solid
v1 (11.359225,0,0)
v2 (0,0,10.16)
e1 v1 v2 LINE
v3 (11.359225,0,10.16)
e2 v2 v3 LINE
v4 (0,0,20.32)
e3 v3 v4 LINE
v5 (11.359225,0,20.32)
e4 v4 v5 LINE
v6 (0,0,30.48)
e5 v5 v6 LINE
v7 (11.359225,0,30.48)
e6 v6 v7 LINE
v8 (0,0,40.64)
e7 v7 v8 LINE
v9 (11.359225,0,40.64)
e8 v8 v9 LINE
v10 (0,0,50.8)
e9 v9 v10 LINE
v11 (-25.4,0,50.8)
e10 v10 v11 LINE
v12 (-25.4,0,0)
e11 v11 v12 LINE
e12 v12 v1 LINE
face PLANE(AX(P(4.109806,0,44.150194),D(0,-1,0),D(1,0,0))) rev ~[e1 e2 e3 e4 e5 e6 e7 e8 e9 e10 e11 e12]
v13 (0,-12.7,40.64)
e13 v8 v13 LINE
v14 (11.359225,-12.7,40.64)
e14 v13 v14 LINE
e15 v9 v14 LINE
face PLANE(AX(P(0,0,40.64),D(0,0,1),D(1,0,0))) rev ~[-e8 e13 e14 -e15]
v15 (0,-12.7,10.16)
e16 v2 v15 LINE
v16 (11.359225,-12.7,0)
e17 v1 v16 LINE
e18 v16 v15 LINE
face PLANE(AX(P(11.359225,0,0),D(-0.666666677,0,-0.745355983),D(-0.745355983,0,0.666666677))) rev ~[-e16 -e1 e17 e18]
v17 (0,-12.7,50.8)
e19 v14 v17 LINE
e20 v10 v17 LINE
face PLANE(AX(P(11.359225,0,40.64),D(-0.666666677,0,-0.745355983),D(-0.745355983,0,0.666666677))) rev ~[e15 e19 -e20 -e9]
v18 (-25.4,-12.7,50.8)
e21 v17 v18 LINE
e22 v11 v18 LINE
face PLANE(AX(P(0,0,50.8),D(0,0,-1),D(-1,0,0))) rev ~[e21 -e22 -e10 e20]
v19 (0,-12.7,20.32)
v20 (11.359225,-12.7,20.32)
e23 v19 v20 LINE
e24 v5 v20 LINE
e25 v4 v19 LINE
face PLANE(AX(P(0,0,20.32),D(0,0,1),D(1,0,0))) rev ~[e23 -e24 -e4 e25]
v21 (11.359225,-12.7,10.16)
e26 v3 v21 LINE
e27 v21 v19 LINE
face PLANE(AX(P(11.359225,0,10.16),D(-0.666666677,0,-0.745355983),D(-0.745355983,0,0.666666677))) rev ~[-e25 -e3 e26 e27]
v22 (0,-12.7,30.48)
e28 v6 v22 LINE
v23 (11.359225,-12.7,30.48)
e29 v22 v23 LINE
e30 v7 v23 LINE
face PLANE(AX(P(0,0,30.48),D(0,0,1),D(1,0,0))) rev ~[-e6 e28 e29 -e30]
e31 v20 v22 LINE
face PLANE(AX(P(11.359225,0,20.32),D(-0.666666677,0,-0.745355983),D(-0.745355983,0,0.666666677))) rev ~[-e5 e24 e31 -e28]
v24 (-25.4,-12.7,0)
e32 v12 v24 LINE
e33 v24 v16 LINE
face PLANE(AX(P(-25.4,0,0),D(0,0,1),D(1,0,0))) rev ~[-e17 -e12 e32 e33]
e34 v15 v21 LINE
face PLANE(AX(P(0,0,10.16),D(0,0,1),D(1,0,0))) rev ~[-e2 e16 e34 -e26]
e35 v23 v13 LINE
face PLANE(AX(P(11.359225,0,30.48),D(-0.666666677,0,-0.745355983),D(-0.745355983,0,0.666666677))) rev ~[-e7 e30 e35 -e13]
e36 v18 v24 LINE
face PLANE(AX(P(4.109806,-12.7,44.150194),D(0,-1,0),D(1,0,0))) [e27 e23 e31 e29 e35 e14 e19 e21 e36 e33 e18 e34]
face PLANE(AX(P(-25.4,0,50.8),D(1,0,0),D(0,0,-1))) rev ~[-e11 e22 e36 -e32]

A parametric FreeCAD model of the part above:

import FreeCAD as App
import Part
import Sketcher
from FreeCAD import Vector
Q = App.Units.Quantity


def add_polygon(sketch, points):
    """Adds a closed chain of lines whose ends are joined by coincident constraints."""
    first, n = sketch.GeometryCount, len(points)
    for a, b in zip(points, points[1:] + points[:1]):
        sketch.addGeometry(Part.LineSegment(App.Vector(*a, 0), App.Vector(*b, 0)), False)
    for i in range(n):
        sketch.addConstraint(Sketcher.Constraint("Coincident", first + i, 2, first + (i + 1) % n, 1))

doc = App.newDocument("Part")
body = doc.addObject("PartDesign::Body", "Body")

# Sketch on XZ plane
sketch1 = body.newObject("Sketcher::SketchObject", "Sketch")
sketch1.AttachmentSupport = (doc.getObject("XZ_Plane"), [""])
sketch1.MapMode = "FlatFace"
add_polygon(sketch1, [(11.359225, 40.64), (0, 50.8), (-25.4, 50.8), (-25.4, 0), (11.359225, 0), (0, 10.16), (11.359225, 10.16), (0, 20.32), (11.359225, 20.32), (0, 30.48), (11.359225, 30.48), (0, 40.64)])  # lines 0-11
sketch1.addConstraint([
    Sketcher.Constraint("Horizontal", 1),
    Sketcher.Constraint("Vertical", 2),
    Sketcher.Constraint("Horizontal", 3),
    Sketcher.Constraint("Horizontal", 5),
    Sketcher.Constraint("Horizontal", 7),
    Sketcher.Constraint("Horizontal", 9),
    Sketcher.Constraint("Horizontal", 11),
    Sketcher.Constraint("PointOnObject", 0, 2, -2),
    Sketcher.Constraint("PointOnObject", 2, 2, -1),
    Sketcher.Constraint("PointOnObject", 4, 2, -2),
    Sketcher.Constraint("PointOnObject", 6, 2, -2),
    Sketcher.Constraint("PointOnObject", 8, 2, -2),
    Sketcher.Constraint("PointOnObject", 10, 2, -2),
    Sketcher.Constraint("Parallel", 0, 4),
    Sketcher.Constraint("Parallel", 4, 6),
    Sketcher.Constraint("Parallel", 6, 8),
    Sketcher.Constraint("Parallel", 8, 10),
    Sketcher.Constraint("Vertical", 3, 2, 5, 2),
    Sketcher.Constraint("Vertical", 5, 2, 7, 2),
    Sketcher.Constraint("Vertical", 7, 2, 9, 2),
    Sketcher.Constraint("Vertical", 9, 2, 11, 2),
    Sketcher.Constraint("DistanceX", 1, 2, 1, 1, Q("1 in")),
    Sketcher.Constraint("DistanceY", 2, 2, 2, 1, Q("2 in")),
    Sketcher.Constraint("Distance", 0, Q("0.6 in")),
])
pad1 = body.newObject("PartDesign::Pad", "Pad")
pad1.Profile = sketch1
pad1.Length = Q("0.5 in")

doc.recompute()
